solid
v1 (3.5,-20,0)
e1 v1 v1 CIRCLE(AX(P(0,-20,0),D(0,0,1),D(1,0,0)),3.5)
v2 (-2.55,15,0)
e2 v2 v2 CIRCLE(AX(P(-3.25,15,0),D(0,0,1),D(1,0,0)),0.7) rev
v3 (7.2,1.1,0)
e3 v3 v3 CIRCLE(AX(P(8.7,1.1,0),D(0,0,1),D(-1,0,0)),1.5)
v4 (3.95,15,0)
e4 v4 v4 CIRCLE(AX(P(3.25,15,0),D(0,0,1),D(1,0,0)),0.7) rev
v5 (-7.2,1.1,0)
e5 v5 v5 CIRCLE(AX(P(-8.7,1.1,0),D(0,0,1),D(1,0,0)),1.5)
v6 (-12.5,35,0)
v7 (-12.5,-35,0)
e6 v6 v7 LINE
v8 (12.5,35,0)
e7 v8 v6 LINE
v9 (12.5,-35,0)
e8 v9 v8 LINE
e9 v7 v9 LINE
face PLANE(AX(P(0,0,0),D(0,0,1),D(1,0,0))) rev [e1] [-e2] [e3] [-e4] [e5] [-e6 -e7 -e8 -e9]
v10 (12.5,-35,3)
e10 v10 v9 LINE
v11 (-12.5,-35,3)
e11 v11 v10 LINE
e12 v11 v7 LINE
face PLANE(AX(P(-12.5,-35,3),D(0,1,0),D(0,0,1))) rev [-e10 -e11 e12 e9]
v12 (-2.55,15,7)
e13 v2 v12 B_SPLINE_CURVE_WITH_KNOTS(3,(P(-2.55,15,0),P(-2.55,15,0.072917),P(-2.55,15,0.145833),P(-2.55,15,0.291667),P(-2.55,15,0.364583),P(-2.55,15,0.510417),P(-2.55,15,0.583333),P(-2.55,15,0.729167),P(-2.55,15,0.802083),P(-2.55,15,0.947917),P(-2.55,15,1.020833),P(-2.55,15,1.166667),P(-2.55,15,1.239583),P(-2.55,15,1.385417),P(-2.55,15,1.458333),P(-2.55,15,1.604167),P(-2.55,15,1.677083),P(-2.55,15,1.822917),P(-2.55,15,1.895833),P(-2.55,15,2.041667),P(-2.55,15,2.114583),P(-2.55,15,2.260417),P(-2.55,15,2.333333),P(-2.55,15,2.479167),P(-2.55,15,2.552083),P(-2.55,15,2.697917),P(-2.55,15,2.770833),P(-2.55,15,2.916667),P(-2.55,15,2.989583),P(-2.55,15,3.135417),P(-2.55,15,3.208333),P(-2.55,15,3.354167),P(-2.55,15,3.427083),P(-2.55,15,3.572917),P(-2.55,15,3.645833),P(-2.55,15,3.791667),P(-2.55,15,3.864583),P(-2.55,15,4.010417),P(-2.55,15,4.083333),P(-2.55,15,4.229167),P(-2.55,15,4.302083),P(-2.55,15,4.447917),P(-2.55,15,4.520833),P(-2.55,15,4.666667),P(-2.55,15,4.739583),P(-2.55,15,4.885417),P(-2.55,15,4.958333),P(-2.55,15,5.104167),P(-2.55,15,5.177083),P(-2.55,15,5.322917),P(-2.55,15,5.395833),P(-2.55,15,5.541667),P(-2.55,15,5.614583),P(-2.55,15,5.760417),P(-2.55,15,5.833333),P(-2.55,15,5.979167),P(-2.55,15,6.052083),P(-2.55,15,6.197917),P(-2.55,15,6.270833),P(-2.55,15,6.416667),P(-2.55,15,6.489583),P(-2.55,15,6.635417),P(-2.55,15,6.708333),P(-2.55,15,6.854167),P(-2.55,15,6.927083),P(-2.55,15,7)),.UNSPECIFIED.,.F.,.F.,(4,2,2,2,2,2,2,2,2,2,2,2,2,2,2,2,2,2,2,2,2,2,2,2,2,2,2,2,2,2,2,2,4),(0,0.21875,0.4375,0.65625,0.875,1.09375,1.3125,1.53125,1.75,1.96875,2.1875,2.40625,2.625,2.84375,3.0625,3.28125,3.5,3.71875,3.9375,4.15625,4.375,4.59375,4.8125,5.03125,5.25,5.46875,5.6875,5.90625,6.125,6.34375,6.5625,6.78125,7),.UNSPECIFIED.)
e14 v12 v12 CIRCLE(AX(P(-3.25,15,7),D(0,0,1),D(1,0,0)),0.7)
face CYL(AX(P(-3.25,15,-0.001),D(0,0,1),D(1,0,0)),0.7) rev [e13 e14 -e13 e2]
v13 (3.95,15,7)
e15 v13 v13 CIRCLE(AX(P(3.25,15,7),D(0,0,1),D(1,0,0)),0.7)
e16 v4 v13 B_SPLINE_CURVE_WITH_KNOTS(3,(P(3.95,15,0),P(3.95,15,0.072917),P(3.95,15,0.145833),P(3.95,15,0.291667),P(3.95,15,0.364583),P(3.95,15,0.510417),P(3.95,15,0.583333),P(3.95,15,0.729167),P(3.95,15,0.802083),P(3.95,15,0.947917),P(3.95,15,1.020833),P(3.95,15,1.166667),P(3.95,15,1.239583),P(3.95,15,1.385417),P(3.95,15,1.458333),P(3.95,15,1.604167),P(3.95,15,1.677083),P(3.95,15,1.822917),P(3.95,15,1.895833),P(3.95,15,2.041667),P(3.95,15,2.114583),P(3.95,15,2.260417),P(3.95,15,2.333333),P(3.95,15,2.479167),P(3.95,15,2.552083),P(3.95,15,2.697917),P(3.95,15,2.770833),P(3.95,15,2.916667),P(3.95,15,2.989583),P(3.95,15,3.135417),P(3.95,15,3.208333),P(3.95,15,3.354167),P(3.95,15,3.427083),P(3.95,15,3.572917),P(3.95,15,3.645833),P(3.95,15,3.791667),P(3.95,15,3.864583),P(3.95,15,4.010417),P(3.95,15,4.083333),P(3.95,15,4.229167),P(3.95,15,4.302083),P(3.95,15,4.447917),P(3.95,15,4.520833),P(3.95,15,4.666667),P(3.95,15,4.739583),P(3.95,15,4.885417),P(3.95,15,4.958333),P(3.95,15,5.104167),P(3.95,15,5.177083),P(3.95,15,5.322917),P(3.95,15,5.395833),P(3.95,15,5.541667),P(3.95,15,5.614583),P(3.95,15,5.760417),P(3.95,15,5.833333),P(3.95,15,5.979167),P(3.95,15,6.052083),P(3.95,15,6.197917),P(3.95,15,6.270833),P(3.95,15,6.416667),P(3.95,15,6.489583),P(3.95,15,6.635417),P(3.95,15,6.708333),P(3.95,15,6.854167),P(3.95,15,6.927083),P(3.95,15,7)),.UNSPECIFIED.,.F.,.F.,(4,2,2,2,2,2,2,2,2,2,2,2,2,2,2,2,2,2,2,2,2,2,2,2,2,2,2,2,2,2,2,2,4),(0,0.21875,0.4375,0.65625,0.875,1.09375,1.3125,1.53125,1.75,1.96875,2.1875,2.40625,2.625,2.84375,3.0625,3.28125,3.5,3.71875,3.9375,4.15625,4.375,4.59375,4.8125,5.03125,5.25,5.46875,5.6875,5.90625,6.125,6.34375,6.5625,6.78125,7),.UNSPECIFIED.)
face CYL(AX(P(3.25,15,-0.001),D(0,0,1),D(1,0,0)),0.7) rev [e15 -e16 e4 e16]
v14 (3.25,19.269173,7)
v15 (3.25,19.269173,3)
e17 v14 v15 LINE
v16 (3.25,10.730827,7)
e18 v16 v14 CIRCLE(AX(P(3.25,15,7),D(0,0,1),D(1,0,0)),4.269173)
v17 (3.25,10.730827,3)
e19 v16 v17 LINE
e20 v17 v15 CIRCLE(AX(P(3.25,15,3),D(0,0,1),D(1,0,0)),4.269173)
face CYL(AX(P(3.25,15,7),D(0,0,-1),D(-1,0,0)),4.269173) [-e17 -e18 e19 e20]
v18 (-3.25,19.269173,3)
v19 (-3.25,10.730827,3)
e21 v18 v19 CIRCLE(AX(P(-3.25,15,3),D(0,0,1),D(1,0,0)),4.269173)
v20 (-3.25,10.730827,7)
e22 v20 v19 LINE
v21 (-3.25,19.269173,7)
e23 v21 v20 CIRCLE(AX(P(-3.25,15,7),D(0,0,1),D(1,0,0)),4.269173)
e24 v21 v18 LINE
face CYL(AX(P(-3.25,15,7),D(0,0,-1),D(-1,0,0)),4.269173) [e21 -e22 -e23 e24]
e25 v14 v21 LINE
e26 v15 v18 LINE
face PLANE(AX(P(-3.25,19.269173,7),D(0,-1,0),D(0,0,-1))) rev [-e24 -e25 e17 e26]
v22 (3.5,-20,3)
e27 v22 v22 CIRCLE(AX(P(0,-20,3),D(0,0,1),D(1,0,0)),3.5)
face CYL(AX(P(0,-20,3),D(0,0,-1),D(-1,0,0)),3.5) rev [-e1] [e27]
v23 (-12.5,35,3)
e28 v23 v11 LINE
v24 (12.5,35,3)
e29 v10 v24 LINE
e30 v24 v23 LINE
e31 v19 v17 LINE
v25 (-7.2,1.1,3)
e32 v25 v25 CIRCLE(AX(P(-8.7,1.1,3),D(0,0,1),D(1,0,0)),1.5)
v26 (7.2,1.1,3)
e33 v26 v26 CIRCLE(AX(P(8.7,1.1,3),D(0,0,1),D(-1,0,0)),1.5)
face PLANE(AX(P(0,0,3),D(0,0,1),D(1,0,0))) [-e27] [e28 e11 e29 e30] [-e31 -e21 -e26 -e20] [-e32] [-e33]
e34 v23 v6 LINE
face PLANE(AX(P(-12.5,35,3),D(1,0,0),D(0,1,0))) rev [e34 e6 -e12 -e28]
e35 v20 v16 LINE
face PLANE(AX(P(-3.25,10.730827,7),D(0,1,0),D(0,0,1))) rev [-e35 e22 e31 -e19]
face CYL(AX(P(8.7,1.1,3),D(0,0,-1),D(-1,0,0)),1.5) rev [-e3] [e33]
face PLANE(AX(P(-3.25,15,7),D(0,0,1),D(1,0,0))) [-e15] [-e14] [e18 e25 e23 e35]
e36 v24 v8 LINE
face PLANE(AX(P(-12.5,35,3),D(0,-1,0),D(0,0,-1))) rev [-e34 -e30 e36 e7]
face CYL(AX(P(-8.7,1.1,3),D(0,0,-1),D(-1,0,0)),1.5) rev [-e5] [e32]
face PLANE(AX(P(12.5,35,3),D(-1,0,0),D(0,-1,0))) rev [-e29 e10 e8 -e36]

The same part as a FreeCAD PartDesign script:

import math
import FreeCAD as App
import Part
import Sketcher
from FreeCAD import Vector
Q = App.Units.Quantity


def add_polygon(sketch, points):
    """Adds a closed chain of lines whose ends are joined by coincident constraints."""
    first, n = sketch.GeometryCount, len(points)
    for a, b in zip(points, points[1:] + points[:1]):
        sketch.addGeometry(Part.LineSegment(App.Vector(*a, 0), App.Vector(*b, 0)), False)
    for i in range(n):
        sketch.addConstraint(Sketcher.Constraint("Coincident", first + i, 2, first + (i + 1) % n, 1))

doc = App.newDocument("Part")
params = doc.addObject("Spreadsheet::Sheet", "Params")
for row, (alias, value) in enumerate([
    ("sketch1_diameter", "7 mm"),
    ("sketch1_diameter2", "3 mm"),
    ("sketch1_width", "25 mm"),
    ("sketch1_height", "70 mm"),
    ("pad1_length", "3 mm"),
    ("sketch2_diameter", "1.4 mm"),
    ("sketch3_diameter", "1.4 mm"),
    ("sketch4_diameter", "1.4 mm"),
    ("sketch4_width", "6.5 mm"),
    ("pad2_length", "4 mm"),
], start=1):
    params.set(f"A{row}", alias)
    params.set(f"B{row}", "=" + value)
    params.setAlias(f"B{row}", alias)

body = doc.addObject("PartDesign::Body", "Body")

# Sketch on XY plane
sketch1 = doc.addObject("Sketcher::SketchObject", "Sketch")
body.addObject(sketch1)
sketch1.AttachmentSupport = (doc.XY_Plane, [""])
sketch1.MapMode = "FlatFace"
add_polygon(sketch1, [(-12.5, 35), (-12.5, -35), (12.5, -35), (12.5, 35)])  # lines 0-3
sketch1.addGeometry(Part.Circle(Vector(0, -20, 0), Vector(0, 0, 1), 3.5), False)  # 4
sketch1.addGeometry(Part.Circle(Vector(-8.7, 1.1, 0), Vector(0, 0, 1), 1.5), False)  # 5
sketch1.addGeometry(Part.Circle(Vector(8.7, 1.1, 0), Vector(0, 0, 1), 1.5), False)  # 6
sketch1.addConstraint([
    Sketcher.Constraint("Vertical", 0),
    Sketcher.Constraint("Horizontal", 1),
    Sketcher.Constraint("Vertical", 2),
    Sketcher.Constraint("Horizontal", 3),
    Sketcher.Constraint("Equal", 5, 6),
    Sketcher.Constraint("Symmetric", 0, 2, 2, 2, -1, 1),
    Sketcher.Constraint("Symmetric", 5, 3, 6, 3, -2),
    Sketcher.Constraint("PointOnObject", 4, 3, -2),
    Sketcher.Constraint("Diameter", 4, Q("7 mm")),
    Sketcher.Constraint("Diameter", 5, Q("3 mm")),
    Sketcher.Constraint("DistanceX", 1, 1, 1, 2, Q("25 mm")),
    Sketcher.Constraint("DistanceY", 0, 2, 0, 1, Q("70 mm")),
    Sketcher.Constraint("DistanceY", 4, 3, -1, 1, Q("20 mm")),
    Sketcher.Constraint("DistanceX", 5, 3, -1, 1, Q("8.7 mm")),
    Sketcher.Constraint("DistanceY", -1, 1, 5, 3, Q("1.1 mm")),
])
sketch1.setExpression("Constraints[12]", "Params.sketch1_diameter")
sketch1.setExpression("Constraints[13]", "Params.sketch1_diameter2")
sketch1.setExpression("Constraints[14]", "Params.sketch1_width")
sketch1.setExpression("Constraints[15]", "Params.sketch1_height")
pad1 = doc.addObject("PartDesign::Pad", "Pad")
body.addObject(pad1)
pad1.Profile = sketch1
pad1.setExpression("Length", "Params.pad1_length")

# Sketch on XY plane
sketch2 = doc.addObject("Sketcher::SketchObject", "Sketch001")
body.addObject(sketch2)
sketch2.AttachmentSupport = (doc.XY_Plane, [""])
sketch2.MapMode = "FlatFace"
sketch2.AttachmentOffset = App.Placement(Vector(0, 0, 3), App.Rotation())
sketch2.addGeometry(Part.Circle(Vector(-3.2, 15, 0), Vector(0, 0, 1), 0.7), False)
sketch2.addConstraint([
    Sketcher.Constraint("Diameter", 0, Q("1.4 mm")),
    Sketcher.Constraint("DistanceY", -1, 1, 0, 3, Q("15 mm")),
    Sketcher.Constraint("DistanceX", 0, 3, -1, 1, Q("3.25 mm")),
])
sketch2.setExpression("Constraints[0]", "Params.sketch2_diameter")
pocket1 = doc.addObject("PartDesign::Pocket", "Pocket")
body.addObject(pocket1)
pocket1.Profile = sketch2
pocket1.Type = "UpToFirst"

# Sketch on XY plane
sketch3 = doc.addObject("Sketcher::SketchObject", "Sketch002")
body.addObject(sketch3)
sketch3.AttachmentSupport = (doc.XY_Plane, [""])
sketch3.MapMode = "FlatFace"
sketch3.AttachmentOffset = App.Placement(Vector(0, 0, 3), App.Rotation())
sketch3.addGeometry(Part.Circle(Vector(3.2, 15, 0), Vector(0, 0, 1), 0.7), False)
sketch3.addConstraint([
    Sketcher.Constraint("Diameter", 0, Q("1.4 mm")),
    Sketcher.Constraint("DistanceY", -1, 1, 0, 3, Q("15 mm")),
    Sketcher.Constraint("DistanceX", -1, 1, 0, 3, Q("3.25 mm")),
])
sketch3.setExpression("Constraints[0]", "Params.sketch3_diameter")
pocket2 = doc.addObject("PartDesign::Pocket", "Pocket001")
body.addObject(pocket2)
pocket2.Profile = sketch3
pocket2.Type = "UpToFirst"

# Sketch on XY plane
sketch4 = doc.addObject("Sketcher::SketchObject", "Sketch003")
body.addObject(sketch4)
sketch4.AttachmentSupport = (doc.XY_Plane, [""])
sketch4.MapMode = "FlatFace"
sketch4.AttachmentOffset = App.Placement(Vector(0, 0, 7), App.Rotation())
sketch4.addGeometry([
    Part.LineSegment(Vector(3.2, 19.3, 0), Vector(-3.2, 19.3, 0)),  # 0
    Part.ArcOfCircle(Part.Circle(Vector(-3.2, 15, 0), Vector(0, 0, 1), 4.3), math.radians(90), math.radians(270)),  # 1
    Part.LineSegment(Vector(-3.2, 10.7, 0), Vector(3.2, 10.7, 0)),  # 2
    Part.ArcOfCircle(Part.Circle(Vector(3.2, 15, 0), Vector(0, 0, 1), 4.3), math.radians(-90), math.radians(90)),  # 3
    Part.Circle(Vector(3.2, 15, 0), Vector(0, 0, 1), 0.7),  # 4
    Part.Circle(Vector(-3.2, 15, 0), Vector(0, 0, 1), 0.7),  # 5
], False)
sketch4.addConstraint([
    Sketcher.Constraint("Tangent", 0, 2, 1, 1),
    Sketcher.Constraint("Tangent", 1, 2, 2, 1),
    Sketcher.Constraint("Tangent", 2, 2, 3, 1),
    Sketcher.Constraint("Tangent", 3, 2, 0, 1),
    Sketcher.Constraint("Horizontal", 0),
    Sketcher.Constraint("Horizontal", 2),
    Sketcher.Constraint("Coincident", 4, 3, 3, 3),
    Sketcher.Constraint("Coincident", 5, 3, 1, 3),
    Sketcher.Constraint("Equal", 4, 5),
    Sketcher.Constraint("Diameter", 4, Q("1.4 mm")),
    Sketcher.Constraint("DistanceX", 0, 2, 0, 1, Q("6.5 mm")),
    Sketcher.Constraint("DistanceY", -1, 1, 1, 3, Q("15 mm")),
    Sketcher.Constraint("DistanceX", 1, 3, -1, 1, Q("3.25 mm")),
    Sketcher.Constraint("Radius", 1, Q("4.269173 mm")),
])
sketch4.setExpression("Constraints[9]", "Params.sketch4_diameter")
sketch4.setExpression("Constraints[10]", "Params.sketch4_width")
pad2 = doc.addObject("PartDesign::Pad", "Pad001")
body.addObject(pad2)
pad2.Profile = sketch4
pad2.setExpression("Length", "Params.pad2_length")
pad2.Reversed = True

doc.recompute()
